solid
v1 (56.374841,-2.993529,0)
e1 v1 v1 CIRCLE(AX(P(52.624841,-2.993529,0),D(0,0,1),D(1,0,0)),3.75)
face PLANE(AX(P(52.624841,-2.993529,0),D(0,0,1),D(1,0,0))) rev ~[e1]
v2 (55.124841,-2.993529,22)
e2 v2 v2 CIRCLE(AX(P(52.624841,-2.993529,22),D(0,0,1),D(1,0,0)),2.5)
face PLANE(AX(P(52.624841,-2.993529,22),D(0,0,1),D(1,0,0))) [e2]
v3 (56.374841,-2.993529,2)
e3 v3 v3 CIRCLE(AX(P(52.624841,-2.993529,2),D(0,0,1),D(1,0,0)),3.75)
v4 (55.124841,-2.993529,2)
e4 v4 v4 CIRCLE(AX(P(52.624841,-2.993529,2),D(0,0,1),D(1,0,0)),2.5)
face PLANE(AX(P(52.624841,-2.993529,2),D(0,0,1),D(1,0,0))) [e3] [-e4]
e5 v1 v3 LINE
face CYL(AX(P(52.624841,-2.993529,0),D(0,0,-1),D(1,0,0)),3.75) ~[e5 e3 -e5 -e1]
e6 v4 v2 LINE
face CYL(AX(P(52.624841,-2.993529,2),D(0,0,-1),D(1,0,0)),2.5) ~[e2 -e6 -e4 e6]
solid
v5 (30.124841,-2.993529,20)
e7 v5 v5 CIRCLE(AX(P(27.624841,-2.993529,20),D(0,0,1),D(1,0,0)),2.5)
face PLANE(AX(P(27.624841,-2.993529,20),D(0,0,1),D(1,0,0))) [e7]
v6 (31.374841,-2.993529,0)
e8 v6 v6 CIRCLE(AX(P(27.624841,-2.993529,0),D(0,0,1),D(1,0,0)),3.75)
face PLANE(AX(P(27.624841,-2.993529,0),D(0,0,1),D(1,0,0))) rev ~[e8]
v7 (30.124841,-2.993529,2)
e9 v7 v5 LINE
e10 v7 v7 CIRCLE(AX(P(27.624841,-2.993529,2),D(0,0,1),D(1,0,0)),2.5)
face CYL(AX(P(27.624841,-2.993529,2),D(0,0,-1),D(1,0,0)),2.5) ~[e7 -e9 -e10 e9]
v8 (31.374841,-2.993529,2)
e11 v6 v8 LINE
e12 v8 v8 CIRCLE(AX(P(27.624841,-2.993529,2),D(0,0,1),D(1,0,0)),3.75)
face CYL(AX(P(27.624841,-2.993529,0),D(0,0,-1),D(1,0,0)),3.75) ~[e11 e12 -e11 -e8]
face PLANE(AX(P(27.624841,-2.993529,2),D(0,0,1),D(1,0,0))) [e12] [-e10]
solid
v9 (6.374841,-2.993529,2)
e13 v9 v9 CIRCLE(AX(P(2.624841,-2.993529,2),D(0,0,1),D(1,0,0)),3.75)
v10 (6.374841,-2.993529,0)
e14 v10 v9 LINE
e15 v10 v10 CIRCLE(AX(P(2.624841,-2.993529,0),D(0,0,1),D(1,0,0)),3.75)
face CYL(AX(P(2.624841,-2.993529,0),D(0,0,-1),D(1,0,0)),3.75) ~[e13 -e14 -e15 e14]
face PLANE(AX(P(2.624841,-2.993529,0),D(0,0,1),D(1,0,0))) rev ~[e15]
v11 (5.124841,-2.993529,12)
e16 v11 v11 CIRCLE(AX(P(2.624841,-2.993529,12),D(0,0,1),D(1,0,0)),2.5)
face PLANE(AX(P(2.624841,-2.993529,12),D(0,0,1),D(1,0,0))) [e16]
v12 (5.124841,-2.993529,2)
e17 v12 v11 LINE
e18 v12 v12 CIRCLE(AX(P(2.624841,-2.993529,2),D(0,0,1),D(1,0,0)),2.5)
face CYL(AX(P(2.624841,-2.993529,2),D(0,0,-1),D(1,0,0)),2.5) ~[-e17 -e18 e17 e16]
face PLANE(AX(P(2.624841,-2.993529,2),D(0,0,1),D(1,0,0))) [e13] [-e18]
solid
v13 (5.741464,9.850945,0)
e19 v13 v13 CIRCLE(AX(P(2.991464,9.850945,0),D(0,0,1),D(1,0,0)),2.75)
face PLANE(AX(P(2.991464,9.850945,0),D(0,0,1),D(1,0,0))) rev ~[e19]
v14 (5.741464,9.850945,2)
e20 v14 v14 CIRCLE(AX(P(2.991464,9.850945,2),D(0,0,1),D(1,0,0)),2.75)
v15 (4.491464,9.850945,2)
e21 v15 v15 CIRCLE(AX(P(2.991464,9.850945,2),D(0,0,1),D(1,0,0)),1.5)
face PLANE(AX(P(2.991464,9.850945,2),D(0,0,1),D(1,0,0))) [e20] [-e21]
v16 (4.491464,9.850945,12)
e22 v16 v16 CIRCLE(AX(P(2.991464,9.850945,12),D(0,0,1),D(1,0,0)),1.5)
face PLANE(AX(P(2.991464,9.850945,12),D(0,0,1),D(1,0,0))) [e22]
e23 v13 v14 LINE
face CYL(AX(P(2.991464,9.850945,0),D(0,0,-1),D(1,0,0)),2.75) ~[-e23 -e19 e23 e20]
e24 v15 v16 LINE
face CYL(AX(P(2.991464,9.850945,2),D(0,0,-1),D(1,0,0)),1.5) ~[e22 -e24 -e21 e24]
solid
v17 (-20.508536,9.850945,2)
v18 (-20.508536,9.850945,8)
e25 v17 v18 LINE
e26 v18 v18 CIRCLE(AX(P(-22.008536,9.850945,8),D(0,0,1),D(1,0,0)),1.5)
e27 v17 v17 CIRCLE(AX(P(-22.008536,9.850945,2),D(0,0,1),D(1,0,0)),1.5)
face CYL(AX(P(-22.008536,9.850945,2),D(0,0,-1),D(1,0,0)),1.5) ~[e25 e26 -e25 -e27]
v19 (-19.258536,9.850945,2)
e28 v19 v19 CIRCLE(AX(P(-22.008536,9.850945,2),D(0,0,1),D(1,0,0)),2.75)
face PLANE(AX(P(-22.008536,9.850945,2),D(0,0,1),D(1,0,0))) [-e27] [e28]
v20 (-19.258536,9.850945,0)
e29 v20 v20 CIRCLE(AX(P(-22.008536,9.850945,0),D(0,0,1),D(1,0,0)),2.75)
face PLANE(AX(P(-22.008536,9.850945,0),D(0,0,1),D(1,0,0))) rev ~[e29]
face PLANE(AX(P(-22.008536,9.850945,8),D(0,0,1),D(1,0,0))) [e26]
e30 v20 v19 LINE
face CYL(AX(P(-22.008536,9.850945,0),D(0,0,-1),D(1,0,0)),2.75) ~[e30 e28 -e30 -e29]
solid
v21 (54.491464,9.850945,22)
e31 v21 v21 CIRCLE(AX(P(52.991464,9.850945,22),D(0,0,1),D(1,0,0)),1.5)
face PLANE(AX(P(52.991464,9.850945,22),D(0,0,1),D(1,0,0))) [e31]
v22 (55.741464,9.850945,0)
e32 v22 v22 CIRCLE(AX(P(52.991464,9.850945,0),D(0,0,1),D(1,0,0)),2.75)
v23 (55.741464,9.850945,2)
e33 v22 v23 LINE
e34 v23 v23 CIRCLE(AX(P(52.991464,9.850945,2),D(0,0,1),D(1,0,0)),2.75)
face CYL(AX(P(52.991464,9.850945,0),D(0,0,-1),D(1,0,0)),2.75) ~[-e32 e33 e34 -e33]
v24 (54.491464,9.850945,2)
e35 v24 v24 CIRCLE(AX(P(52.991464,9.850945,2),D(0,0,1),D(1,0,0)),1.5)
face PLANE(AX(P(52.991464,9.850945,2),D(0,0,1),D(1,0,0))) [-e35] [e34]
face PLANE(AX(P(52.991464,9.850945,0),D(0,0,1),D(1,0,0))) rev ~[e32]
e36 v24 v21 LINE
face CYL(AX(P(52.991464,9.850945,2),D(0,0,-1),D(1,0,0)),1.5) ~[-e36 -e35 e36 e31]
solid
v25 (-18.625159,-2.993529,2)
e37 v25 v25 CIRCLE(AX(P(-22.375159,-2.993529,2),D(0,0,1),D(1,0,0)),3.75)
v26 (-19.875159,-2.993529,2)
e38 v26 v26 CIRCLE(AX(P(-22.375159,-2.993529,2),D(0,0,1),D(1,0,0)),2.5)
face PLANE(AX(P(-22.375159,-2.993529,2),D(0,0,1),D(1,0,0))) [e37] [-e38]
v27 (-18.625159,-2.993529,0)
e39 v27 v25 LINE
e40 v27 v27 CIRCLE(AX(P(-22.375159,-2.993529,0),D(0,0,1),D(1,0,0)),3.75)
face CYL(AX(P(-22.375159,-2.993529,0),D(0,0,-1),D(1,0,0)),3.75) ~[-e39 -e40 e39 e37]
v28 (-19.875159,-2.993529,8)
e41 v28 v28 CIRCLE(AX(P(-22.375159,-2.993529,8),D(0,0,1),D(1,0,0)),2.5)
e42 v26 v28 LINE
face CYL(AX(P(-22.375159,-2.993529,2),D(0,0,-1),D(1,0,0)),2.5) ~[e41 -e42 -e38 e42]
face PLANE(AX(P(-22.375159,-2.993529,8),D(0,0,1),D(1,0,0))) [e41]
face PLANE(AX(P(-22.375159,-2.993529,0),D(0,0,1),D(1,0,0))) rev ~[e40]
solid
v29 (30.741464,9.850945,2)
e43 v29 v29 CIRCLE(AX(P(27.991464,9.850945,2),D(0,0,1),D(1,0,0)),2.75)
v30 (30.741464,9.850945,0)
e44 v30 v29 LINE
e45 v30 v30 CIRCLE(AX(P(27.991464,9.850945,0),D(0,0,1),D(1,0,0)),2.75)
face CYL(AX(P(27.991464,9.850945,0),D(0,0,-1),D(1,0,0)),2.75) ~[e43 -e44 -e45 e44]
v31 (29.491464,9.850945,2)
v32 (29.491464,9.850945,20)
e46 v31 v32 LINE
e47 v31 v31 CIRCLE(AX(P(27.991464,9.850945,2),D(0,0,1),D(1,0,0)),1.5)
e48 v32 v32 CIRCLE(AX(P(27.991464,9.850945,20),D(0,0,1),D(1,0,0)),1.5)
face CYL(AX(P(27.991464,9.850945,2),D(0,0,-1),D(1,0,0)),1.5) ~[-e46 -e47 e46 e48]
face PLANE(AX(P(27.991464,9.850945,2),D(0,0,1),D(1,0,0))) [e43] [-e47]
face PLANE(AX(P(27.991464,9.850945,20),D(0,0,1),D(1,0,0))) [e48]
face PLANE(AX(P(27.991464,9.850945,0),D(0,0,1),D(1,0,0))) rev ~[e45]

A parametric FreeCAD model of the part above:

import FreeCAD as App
import Part
import Sketcher
from FreeCAD import Vector
Q = App.Units.Quantity

doc = App.newDocument("Part")
body = doc.addObject("PartDesign::Body", "Body")
body.AllowCompound = True

sketch1 = body.newObject("Sketcher::SketchObject", "Sketch")
sketch1.AttachmentSupport = (doc.getObject("XY_Plane"), [""])
sketch1.MapMode = "FlatFace"
sketch1.addGeometry([
    Part.Circle(Vector(-22, 9.9, 0), Vector(0, 0, 1), 2.8),
    Part.Circle(Vector(3, 9.9, 0), Vector(0, 0, 1), 2.8),
    Part.Circle(Vector(28, 9.9, 0), Vector(0, 0, 1), 2.8),
    Part.Circle(Vector(-22.4, -3, 0), Vector(0, 0, 1), 3.8),
    Part.Circle(Vector(27.6, -3, 0), Vector(0, 0, 1), 3.8),
    Part.Circle(Vector(53, 9.9, 0), Vector(0, 0, 1), 2.8),
    Part.Circle(Vector(2.6, -3, 0), Vector(0, 0, 1), 3.8),
    Part.Circle(Vector(52.6, -3, 0), Vector(0, 0, 1), 3.8),
], False)
sketch1.addConstraint([
    Sketcher.Constraint("Equal", 0, 1),
    Sketcher.Constraint("Equal", 1, 2),
    Sketcher.Constraint("Equal", 3, 4),
    Sketcher.Constraint("Equal", 2, 5),
    Sketcher.Constraint("Equal", 4, 6),
    Sketcher.Constraint("Equal", 6, 7),
    Sketcher.Constraint("Horizontal", 0, 3, 1, 3),
    Sketcher.Constraint("Horizontal", 1, 3, 2, 3),
    Sketcher.Constraint("Horizontal", 3, 3, 4, 3),
    Sketcher.Constraint("Horizontal", 2, 3, 5, 3),
    Sketcher.Constraint("Horizontal", 4, 3, 6, 3),
    Sketcher.Constraint("Horizontal", 6, 3, 7, 3),
    Sketcher.Constraint("Diameter", 0, Q("5.5 mm")),
    Sketcher.Constraint("Diameter", 3, Q("7.5 mm")),
    Sketcher.Constraint("DistanceX", 0, 3, 1, 3, Q("25 mm")),
    Sketcher.Constraint("DistanceX", 1, 3, 2, 3, Q("25 mm")),
    Sketcher.Constraint("DistanceX", 3, 3, 4, 3, Q("50 mm")),
    Sketcher.Constraint("DistanceX", 2, 3, 5, 3, Q("25 mm")),
    Sketcher.Constraint("DistanceX", 3, 3, 6, 3, Q("25 mm")),
    Sketcher.Constraint("DistanceX", 4, 3, 7, 3, Q("25 mm")),
    Sketcher.Constraint("DistanceX", 3, 3, -1, 1, Q("22.375159 mm")),
    Sketcher.Constraint("DistanceY", 3, 3, -1, 1, Q("2.993529 mm")),
    Sketcher.Constraint("DistanceX", 0, 3, -1, 1, Q("22.008536 mm")),
    Sketcher.Constraint("DistanceY", -1, 1, 0, 3, Q("9.850945 mm")),
])
pad1 = body.newObject("PartDesign::Pad", "Pad")
pad1.Profile = sketch1
pad1.Length = 2

sketch2 = body.newObject("Sketcher::SketchObject", "Sketch001")
sketch2.AttachmentSupport = (doc.getObject("XY_Plane"), [""])
sketch2.MapMode = "FlatFace"
sketch2.AttachmentOffset = App.Placement(Vector(0, 0, 2), App.Rotation())
sketch2.addGeometry([
    Part.Circle(Vector(-22, 9.9, 0), Vector(0, 0, 1), 1.5),
    Part.Circle(Vector(-22.4, -3, 0), Vector(0, 0, 1), 2.5),
], False)
sketch2.addConstraint([
    Sketcher.Constraint("Diameter", 0, Q("3 mm")),
    Sketcher.Constraint("Diameter", 1, Q("5 mm")),
    Sketcher.Constraint("DistanceX", 1, 3, -1, 1, Q("22.375159 mm")),
    Sketcher.Constraint("DistanceY", 1, 3, -1, 1, Q("2.993529 mm")),
    Sketcher.Constraint("DistanceX", 0, 3, -1, 1, Q("22.008536 mm")),
    Sketcher.Constraint("DistanceY", -1, 1, 0, 3, Q("9.850945 mm")),
])
pad2 = body.newObject("PartDesign::Pad", "Pad001")
pad2.Profile = sketch2
pad2.Length = 6

sketch3 = body.newObject("Sketcher::SketchObject", "Sketch002")
sketch3.AttachmentSupport = (doc.getObject("XY_Plane"), [""])
sketch3.MapMode = "FlatFace"
sketch3.AttachmentOffset = App.Placement(Vector(0, 0, 2), App.Rotation())
sketch3.addGeometry([
    Part.Circle(Vector(2.6, -3, 0), Vector(0, 0, 1), 2.5),
    Part.Circle(Vector(3, 9.9, 0), Vector(0, 0, 1), 1.5),
], False)
sketch3.addConstraint([
    Sketcher.Constraint("Diameter", 0, Q("5 mm")),
    Sketcher.Constraint("Diameter", 1, Q("3 mm")),
    Sketcher.Constraint("DistanceX", -1, 1, 0, 3, Q("2.624841 mm")),
    Sketcher.Constraint("DistanceY", 0, 3, -1, 1, Q("2.993529 mm")),
    Sketcher.Constraint("DistanceX", -1, 1, 1, 3, Q("2.991464 mm")),
    Sketcher.Constraint("DistanceY", -1, 1, 1, 3, Q("9.850945 mm")),
])
pad3 = body.newObject("PartDesign::Pad", "Pad002")
pad3.Profile = sketch3
pad3.Length = 10

sketch4 = body.newObject("Sketcher::SketchObject", "Sketch003")
sketch4.AttachmentSupport = (doc.getObject("XY_Plane"), [""])
sketch4.MapMode = "FlatFace"
sketch4.AttachmentOffset = App.Placement(Vector(0, 0, 2), App.Rotation())
sketch4.addGeometry([
    Part.Circle(Vector(28, 9.9, 0), Vector(0, 0, 1), 1.5),
    Part.Circle(Vector(27.6, -3, 0), Vector(0, 0, 1), 2.5),
], False)
sketch4.addConstraint([
    Sketcher.Constraint("Diameter", 0, Q("3 mm")),
    Sketcher.Constraint("Diameter", 1, Q("5 mm")),
    Sketcher.Constraint("DistanceX", -1, 1, 1, 3, Q("27.624841 mm")),
    Sketcher.Constraint("DistanceY", 1, 3, -1, 1, Q("2.993529 mm")),
    Sketcher.Constraint("DistanceX", -1, 1, 0, 3, Q("27.991464 mm")),
    Sketcher.Constraint("DistanceY", -1, 1, 0, 3, Q("9.850945 mm")),
])
pad4 = body.newObject("PartDesign::Pad", "Pad003")
pad4.Profile = sketch4
pad4.Length = 18

sketch5 = body.newObject("Sketcher::SketchObject", "Sketch004")
sketch5.AttachmentSupport = (doc.getObject("XY_Plane"), [""])
sketch5.MapMode = "FlatFace"
sketch5.AttachmentOffset = App.Placement(Vector(0, 0, 2), App.Rotation())
sketch5.addGeometry([
    Part.Circle(Vector(53, 9.9, 0), Vector(0, 0, 1), 1.5),
    Part.Circle(Vector(52.6, -3, 0), Vector(0, 0, 1), 2.5),
], False)
sketch5.addConstraint([
    Sketcher.Constraint("Diameter", 0, Q("3 mm")),
    Sketcher.Constraint("Diameter", 1, Q("5 mm")),
    Sketcher.Constraint("DistanceX", -1, 1, 1, 3, Q("52.624841 mm")),
    Sketcher.Constraint("DistanceY", 1, 3, -1, 1, Q("2.993529 mm")),
    Sketcher.Constraint("DistanceX", -1, 1, 0, 3, Q("52.991464 mm")),
    Sketcher.Constraint("DistanceY", -1, 1, 0, 3, Q("9.850945 mm")),
])
pad5 = body.newObject("PartDesign::Pad", "Pad004")
pad5.Profile = sketch5
pad5.Length = 20

doc.recompute()
